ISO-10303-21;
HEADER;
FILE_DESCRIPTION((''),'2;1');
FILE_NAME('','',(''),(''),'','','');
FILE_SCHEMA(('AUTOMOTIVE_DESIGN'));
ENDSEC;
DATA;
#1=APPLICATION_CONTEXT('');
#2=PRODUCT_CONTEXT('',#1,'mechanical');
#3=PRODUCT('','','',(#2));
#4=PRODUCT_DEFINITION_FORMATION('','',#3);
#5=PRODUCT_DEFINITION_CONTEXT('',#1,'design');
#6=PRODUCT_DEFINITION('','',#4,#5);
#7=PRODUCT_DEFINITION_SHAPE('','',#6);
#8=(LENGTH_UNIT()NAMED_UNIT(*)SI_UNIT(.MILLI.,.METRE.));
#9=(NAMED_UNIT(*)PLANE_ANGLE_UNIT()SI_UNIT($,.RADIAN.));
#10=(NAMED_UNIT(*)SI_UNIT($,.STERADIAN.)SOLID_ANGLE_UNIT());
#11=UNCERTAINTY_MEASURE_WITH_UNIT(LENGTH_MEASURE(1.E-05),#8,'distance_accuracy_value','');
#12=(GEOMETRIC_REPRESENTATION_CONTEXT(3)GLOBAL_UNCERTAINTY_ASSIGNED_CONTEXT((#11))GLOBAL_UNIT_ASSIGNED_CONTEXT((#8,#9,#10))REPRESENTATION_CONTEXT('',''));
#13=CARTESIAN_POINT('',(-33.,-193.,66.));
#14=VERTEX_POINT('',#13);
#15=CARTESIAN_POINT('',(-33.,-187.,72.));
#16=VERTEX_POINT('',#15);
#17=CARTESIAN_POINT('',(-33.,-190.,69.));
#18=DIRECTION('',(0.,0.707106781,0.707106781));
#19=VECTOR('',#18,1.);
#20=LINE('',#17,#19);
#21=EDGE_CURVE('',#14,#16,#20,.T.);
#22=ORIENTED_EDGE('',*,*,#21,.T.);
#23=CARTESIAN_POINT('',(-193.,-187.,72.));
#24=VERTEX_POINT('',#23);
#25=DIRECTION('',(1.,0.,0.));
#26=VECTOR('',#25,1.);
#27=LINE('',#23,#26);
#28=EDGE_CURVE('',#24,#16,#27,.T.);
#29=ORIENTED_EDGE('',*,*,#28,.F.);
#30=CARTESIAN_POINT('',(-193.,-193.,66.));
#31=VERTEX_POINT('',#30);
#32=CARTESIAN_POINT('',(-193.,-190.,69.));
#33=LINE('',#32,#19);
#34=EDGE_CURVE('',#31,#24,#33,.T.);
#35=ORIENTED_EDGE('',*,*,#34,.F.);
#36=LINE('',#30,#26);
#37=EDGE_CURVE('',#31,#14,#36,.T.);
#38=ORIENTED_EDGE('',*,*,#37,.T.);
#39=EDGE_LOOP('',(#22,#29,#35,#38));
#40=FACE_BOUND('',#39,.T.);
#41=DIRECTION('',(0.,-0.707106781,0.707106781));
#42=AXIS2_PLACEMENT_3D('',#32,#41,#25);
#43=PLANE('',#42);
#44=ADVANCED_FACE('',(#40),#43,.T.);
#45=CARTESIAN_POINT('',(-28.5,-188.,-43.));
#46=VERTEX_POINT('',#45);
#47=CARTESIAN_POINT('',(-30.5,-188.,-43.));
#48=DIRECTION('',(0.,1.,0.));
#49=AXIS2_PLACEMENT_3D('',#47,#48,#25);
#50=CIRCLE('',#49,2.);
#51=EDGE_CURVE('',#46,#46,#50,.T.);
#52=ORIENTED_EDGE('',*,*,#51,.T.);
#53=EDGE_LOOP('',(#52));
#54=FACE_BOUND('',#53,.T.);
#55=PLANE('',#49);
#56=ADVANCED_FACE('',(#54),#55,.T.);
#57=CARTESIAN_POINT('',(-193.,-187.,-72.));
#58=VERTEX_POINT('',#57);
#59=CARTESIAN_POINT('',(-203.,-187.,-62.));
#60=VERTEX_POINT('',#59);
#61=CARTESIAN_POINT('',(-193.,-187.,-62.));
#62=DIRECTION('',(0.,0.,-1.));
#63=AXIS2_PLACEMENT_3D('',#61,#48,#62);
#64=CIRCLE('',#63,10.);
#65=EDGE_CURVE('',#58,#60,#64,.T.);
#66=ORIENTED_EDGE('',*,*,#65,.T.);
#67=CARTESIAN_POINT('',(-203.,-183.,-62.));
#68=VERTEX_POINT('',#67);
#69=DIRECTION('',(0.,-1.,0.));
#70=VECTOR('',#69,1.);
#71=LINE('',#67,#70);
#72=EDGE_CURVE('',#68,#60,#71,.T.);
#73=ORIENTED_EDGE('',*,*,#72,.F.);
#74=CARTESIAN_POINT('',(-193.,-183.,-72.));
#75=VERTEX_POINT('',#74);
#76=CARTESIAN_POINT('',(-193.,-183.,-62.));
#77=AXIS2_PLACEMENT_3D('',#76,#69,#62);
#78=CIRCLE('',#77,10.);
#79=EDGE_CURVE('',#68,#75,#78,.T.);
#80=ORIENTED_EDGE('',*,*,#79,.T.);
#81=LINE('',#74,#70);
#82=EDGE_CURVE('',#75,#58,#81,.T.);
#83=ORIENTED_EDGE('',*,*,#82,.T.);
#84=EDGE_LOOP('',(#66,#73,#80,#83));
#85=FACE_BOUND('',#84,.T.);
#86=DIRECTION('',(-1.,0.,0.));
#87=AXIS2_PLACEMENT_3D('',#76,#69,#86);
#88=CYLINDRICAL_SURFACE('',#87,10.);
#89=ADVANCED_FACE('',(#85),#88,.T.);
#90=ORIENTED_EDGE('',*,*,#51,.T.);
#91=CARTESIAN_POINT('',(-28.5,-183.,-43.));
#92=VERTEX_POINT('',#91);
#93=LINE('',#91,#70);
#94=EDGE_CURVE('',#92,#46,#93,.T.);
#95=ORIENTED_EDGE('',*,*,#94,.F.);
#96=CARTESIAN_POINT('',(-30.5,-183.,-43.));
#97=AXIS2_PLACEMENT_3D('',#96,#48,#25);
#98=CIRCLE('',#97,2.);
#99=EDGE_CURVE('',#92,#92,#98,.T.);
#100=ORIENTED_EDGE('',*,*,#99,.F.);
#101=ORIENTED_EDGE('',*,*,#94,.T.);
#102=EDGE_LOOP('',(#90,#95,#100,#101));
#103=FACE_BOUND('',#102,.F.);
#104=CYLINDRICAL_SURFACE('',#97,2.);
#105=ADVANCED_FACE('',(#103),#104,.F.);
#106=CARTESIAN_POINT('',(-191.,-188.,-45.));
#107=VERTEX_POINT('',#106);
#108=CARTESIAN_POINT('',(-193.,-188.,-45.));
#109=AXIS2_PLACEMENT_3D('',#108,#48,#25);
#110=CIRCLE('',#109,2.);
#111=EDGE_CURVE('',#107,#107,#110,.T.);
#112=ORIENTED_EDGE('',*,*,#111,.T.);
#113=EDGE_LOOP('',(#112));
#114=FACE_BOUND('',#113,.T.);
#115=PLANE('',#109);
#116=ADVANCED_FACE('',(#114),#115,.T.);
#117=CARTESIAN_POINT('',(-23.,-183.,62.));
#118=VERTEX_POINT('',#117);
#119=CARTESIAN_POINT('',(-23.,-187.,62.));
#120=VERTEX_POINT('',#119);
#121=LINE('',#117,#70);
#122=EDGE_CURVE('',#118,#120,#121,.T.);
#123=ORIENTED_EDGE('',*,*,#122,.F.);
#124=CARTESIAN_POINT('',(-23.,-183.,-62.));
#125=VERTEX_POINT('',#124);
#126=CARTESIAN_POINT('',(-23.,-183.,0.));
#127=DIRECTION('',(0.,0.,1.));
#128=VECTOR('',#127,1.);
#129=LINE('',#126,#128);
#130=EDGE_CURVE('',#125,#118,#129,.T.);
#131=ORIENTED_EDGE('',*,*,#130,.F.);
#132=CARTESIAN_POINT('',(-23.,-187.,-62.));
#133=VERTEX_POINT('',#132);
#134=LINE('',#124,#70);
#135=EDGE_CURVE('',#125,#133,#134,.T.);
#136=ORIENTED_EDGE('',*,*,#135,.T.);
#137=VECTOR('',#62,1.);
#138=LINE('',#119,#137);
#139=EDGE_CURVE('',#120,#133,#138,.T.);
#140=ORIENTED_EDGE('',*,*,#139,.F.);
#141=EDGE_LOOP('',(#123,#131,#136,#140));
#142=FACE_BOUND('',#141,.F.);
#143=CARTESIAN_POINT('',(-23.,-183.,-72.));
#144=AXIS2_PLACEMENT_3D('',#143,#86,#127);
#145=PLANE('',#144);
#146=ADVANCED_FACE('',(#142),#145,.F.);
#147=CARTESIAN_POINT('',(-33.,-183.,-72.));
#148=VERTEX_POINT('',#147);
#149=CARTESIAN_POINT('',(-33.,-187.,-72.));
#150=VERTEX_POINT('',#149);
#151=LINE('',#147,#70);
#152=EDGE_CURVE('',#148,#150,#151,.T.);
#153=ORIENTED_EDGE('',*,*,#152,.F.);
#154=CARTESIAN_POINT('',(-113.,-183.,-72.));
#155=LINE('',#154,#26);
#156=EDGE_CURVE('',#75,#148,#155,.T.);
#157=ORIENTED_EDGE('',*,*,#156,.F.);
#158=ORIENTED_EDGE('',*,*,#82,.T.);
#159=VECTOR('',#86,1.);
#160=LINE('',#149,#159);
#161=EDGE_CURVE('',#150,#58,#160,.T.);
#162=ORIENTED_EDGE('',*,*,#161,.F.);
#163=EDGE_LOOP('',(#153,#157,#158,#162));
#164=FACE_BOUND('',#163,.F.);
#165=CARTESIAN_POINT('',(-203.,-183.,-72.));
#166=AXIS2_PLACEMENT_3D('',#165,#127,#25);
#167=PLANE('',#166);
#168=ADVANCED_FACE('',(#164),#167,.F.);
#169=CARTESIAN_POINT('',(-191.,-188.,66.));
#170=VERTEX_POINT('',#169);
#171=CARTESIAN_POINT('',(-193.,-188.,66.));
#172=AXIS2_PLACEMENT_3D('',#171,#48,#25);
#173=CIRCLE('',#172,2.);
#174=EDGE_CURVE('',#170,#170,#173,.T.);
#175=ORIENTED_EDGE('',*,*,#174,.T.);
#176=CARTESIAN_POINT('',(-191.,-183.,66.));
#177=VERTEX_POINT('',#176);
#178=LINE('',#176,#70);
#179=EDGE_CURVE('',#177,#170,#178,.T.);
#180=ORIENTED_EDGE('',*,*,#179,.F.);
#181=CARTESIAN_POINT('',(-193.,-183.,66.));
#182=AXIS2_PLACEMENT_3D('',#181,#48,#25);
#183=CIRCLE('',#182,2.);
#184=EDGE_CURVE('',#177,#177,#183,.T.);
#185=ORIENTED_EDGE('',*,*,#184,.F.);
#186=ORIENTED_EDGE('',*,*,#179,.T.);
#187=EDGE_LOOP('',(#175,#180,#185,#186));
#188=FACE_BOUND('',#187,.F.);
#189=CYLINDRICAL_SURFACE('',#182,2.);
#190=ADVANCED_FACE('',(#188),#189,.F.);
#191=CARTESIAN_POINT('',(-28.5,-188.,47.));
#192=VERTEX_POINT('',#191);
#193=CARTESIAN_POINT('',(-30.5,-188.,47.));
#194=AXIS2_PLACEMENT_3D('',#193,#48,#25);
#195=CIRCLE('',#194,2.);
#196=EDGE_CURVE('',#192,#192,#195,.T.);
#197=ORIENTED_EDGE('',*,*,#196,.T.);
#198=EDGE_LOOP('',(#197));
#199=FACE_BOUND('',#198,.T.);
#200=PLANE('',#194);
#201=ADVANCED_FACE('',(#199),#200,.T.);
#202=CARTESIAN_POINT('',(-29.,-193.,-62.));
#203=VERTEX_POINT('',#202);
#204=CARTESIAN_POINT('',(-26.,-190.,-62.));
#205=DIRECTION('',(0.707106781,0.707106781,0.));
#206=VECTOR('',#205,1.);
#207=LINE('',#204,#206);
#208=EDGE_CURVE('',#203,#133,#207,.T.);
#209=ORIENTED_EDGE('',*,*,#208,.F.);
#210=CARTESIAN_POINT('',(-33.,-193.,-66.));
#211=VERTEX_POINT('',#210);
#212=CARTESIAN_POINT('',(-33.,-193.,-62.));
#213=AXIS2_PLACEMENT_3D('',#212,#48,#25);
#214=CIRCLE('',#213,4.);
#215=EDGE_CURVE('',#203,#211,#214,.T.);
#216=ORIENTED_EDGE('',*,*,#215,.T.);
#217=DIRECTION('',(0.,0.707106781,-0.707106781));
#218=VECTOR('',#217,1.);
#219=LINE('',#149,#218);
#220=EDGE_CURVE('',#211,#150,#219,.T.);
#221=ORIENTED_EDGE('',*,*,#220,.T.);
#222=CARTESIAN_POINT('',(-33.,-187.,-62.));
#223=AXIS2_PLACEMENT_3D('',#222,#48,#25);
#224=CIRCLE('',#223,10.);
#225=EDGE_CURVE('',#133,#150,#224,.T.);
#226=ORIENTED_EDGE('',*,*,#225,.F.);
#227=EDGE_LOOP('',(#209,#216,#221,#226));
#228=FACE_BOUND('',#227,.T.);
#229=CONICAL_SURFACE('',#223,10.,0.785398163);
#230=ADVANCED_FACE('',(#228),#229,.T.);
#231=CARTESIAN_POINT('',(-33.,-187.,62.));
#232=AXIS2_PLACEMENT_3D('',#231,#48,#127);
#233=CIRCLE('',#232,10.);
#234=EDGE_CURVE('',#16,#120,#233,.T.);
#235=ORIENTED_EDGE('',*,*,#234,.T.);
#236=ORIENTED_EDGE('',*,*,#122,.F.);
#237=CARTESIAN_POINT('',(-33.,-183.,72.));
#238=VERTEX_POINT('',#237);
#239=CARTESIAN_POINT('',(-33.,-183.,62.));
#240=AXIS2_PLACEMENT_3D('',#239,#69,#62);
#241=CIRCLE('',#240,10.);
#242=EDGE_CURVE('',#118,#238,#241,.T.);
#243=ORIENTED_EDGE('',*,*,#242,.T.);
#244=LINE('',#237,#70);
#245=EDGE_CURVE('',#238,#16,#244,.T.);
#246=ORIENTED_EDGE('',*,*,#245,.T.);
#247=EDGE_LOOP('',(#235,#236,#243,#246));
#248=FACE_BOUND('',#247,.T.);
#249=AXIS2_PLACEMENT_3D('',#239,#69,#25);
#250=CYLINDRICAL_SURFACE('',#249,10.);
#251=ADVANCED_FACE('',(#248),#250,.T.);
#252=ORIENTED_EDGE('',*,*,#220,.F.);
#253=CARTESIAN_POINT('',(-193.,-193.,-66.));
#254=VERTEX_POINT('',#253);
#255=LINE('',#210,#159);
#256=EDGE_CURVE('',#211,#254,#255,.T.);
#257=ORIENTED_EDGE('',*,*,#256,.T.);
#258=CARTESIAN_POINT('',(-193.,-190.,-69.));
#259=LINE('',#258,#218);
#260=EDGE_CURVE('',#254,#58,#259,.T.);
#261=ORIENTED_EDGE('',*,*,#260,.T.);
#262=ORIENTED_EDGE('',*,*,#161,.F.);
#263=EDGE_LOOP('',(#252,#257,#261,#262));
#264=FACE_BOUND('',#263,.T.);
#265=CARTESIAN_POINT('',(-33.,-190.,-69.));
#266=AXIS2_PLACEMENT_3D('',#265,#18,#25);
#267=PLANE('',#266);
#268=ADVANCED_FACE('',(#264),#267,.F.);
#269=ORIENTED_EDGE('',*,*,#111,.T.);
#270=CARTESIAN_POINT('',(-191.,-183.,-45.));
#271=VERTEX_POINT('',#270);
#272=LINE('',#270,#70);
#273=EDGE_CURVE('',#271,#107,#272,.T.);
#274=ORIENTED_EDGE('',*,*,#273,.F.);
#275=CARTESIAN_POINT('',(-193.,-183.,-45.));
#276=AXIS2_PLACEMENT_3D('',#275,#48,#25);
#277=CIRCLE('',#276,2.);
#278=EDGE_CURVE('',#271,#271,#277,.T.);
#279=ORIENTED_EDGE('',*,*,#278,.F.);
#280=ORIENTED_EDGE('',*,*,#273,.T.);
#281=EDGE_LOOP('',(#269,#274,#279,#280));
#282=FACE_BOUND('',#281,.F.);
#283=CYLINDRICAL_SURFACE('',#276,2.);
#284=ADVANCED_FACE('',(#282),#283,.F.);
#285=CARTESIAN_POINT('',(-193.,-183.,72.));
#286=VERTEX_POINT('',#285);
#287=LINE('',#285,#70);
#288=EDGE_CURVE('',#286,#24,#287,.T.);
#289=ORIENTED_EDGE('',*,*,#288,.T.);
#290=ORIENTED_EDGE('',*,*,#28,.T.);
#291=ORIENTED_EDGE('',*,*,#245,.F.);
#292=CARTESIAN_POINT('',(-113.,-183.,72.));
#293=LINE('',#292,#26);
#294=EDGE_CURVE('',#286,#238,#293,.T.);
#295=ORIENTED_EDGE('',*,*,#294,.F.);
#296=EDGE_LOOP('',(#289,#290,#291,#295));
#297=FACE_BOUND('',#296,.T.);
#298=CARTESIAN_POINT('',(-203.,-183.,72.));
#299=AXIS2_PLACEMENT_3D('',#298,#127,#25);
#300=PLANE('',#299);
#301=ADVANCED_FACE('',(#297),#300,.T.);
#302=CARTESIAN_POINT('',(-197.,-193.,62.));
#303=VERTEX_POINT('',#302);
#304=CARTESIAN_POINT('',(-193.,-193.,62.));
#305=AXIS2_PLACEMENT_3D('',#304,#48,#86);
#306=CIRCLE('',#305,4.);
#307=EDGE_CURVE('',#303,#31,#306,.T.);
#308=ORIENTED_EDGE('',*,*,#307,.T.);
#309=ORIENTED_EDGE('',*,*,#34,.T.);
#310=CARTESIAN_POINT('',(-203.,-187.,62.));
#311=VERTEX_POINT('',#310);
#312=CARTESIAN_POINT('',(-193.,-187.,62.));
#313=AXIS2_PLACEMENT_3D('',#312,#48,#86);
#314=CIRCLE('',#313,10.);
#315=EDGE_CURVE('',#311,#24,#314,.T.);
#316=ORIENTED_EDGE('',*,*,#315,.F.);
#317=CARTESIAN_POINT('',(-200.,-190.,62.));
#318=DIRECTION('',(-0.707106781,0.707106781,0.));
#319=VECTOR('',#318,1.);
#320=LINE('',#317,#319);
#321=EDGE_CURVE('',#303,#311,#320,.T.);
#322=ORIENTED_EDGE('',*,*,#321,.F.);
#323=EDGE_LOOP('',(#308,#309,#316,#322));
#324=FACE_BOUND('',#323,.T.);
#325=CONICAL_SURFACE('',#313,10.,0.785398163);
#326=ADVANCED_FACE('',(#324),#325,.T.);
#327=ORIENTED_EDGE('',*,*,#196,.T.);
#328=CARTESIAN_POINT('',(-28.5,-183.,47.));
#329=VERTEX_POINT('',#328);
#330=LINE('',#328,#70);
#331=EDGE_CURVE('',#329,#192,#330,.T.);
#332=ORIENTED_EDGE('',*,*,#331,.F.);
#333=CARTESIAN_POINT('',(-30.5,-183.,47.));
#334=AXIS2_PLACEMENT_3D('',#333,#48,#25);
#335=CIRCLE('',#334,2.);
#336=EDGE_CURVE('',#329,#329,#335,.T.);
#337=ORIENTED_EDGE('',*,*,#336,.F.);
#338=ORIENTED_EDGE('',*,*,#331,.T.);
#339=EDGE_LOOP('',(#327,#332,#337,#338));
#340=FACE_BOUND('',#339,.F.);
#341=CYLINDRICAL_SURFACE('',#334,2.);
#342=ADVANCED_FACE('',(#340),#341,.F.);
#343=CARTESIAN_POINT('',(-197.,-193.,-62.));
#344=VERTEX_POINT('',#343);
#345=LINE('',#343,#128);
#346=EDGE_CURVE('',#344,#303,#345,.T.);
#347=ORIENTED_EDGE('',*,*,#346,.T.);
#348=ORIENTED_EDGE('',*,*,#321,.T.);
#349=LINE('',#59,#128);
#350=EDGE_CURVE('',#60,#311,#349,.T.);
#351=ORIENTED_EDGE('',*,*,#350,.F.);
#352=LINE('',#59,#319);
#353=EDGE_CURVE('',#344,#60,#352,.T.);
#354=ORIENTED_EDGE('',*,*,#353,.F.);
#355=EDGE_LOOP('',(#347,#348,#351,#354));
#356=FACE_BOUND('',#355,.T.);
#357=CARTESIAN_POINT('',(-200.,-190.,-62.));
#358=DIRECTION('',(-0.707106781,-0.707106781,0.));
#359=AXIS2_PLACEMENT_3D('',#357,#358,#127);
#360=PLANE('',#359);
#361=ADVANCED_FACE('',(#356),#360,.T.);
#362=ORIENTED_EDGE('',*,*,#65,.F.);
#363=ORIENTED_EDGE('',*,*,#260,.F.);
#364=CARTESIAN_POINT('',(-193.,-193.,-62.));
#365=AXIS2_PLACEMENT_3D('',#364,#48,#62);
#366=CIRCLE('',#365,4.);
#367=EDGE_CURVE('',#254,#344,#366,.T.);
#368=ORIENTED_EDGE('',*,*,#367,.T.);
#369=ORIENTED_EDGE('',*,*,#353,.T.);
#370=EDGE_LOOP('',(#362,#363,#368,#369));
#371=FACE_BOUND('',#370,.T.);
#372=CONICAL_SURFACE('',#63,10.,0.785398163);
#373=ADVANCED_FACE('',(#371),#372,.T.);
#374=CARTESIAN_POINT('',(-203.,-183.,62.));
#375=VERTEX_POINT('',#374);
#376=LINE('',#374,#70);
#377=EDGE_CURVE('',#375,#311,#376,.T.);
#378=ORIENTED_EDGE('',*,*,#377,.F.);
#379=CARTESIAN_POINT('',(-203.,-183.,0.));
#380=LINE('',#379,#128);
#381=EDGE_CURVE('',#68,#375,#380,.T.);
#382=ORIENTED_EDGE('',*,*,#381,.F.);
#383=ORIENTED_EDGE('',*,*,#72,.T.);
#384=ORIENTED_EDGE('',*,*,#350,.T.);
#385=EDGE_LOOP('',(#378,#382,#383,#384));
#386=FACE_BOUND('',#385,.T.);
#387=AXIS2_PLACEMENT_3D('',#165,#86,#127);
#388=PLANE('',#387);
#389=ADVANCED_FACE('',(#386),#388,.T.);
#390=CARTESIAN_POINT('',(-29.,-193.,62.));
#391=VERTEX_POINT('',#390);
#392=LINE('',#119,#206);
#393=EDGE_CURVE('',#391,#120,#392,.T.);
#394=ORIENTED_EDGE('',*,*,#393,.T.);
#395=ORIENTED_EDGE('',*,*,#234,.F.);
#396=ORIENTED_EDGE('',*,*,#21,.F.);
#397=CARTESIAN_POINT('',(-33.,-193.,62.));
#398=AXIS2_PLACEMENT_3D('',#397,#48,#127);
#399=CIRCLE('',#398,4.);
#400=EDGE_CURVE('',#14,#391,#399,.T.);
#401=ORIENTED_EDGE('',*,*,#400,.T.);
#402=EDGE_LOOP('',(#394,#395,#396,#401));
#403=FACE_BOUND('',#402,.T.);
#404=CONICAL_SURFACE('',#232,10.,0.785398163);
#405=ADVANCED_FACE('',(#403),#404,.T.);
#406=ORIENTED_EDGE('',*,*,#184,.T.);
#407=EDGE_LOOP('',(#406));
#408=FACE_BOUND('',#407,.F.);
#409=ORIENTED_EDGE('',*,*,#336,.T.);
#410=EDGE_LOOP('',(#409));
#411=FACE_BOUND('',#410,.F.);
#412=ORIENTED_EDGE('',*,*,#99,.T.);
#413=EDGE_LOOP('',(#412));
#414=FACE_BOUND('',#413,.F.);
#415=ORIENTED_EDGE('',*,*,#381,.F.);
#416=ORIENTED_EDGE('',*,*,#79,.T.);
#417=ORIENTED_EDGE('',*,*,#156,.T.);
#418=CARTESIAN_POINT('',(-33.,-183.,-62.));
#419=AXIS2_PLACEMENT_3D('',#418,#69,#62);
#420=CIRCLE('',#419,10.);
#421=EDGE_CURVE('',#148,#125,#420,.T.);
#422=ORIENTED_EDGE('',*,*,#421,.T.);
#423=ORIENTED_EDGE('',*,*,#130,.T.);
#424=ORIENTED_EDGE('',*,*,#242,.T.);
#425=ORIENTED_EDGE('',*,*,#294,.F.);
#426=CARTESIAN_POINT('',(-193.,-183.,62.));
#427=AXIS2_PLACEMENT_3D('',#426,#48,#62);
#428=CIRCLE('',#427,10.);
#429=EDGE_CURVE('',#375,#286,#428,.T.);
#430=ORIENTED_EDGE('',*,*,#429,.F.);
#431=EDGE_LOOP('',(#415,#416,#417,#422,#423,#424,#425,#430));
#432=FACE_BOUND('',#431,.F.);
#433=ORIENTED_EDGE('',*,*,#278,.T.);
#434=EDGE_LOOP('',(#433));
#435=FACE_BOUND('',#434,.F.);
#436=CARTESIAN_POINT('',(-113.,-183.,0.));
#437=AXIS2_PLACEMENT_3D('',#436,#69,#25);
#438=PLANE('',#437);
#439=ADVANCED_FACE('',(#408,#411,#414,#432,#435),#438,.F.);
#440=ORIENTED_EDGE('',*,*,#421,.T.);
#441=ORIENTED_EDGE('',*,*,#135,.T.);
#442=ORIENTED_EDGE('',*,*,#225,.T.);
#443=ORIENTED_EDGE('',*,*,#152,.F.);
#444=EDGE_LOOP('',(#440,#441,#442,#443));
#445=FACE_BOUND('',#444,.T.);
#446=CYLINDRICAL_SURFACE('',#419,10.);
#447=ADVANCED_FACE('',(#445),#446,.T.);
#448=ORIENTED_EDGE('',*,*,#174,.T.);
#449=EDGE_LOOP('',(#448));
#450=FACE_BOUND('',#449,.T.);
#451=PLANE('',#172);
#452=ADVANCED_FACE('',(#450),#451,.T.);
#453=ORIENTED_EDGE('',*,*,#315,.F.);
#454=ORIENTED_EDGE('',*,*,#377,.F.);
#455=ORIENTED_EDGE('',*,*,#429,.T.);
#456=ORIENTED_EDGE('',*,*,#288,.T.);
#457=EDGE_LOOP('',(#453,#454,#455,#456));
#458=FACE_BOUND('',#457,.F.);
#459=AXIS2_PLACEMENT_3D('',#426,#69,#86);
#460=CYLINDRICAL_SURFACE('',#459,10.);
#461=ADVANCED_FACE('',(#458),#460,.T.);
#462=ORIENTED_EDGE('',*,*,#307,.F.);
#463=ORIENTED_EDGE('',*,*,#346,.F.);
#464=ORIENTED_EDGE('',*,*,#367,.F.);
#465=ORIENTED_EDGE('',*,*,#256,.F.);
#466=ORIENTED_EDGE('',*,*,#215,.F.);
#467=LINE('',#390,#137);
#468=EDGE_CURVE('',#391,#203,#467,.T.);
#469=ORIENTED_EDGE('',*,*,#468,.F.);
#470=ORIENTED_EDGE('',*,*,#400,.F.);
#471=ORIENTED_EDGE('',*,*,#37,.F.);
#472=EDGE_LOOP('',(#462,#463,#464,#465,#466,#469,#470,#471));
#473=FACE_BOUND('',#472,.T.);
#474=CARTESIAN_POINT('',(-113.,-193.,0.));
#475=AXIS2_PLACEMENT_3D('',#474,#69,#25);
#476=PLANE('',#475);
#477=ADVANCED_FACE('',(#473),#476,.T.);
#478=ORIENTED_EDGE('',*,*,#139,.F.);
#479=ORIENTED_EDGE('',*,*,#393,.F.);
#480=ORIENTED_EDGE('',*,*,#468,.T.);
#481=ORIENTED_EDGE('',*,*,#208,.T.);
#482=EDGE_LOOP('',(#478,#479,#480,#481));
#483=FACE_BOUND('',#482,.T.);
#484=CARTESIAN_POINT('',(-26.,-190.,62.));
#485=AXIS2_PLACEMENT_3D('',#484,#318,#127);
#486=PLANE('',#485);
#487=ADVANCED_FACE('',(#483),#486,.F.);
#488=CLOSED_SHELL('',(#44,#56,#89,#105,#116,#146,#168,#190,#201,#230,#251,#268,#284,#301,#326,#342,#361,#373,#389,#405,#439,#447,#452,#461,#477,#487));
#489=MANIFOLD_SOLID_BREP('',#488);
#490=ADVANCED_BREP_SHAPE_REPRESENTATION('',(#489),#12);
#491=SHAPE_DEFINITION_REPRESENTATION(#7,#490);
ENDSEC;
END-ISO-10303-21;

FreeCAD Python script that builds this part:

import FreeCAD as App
import Part
import Sketcher

V = App.Vector


def edges_at(feature, points):
    """Names of the edges that pass closest to the given points."""
    edges = feature.Shape.Edges
    near = lambda p: min(range(len(edges)), key=lambda i: edges[i].distToShape(Part.Vertex(*p))[0])
    return sorted({f"Edge{near(p) + 1}" for p in points})

doc = App.newDocument("Part")
body = doc.addObject("PartDesign::Body", "Body")

# Sketch on XZ plane
sketch1 = doc.addObject("Sketcher::SketchObject", "Sketch")
body.addObject(sketch1)
sketch1.AttachmentSupport = (doc.XZ_Plane, [""])
sketch1.MapMode = "FlatFace"
sketch1.addGeometry(Part.LineSegment(V(-90, 72, 0), V(-90, -72, 0)), False)
sketch1.addGeometry(Part.LineSegment(V(-90, -72, 0), V(90, -72, 0)), False)
sketch1.addGeometry(Part.LineSegment(V(90, -72, 0), V(90, 72, 0)), False)
sketch1.addGeometry(Part.LineSegment(V(90, 72, 0), V(-90, 72, 0)), False)
sketch1.addConstraint(Sketcher.Constraint("Coincident", 0, 2, 1, 1))
sketch1.addConstraint(Sketcher.Constraint("Coincident", 1, 2, 2, 1))
sketch1.addConstraint(Sketcher.Constraint("Coincident", 2, 2, 3, 1))
sketch1.addConstraint(Sketcher.Constraint("Coincident", 3, 2, 0, 1))
sketch1.addConstraint(Sketcher.Constraint("Vertical", 0))
sketch1.addConstraint(Sketcher.Constraint("Horizontal", 1))
sketch1.addConstraint(Sketcher.Constraint("Vertical", 2))
sketch1.addConstraint(Sketcher.Constraint("Horizontal", 3))
sketch1.addConstraint(Sketcher.Constraint("Symmetric", 0, 2, 2, 2, -1, 1))
sketch1.addConstraint(Sketcher.Constraint("DistanceX", 1, 1, 1, 2, 180.0))
sketch1.addConstraint(Sketcher.Constraint("DistanceY", 0, 2, 0, 1, 144.0))
pad1 = doc.addObject("PartDesign::Pad", "Pad")
body.addObject(pad1)
pad1.Profile = sketch1
pad1.Length = 10
doc.recompute()

fillet = doc.addObject("PartDesign::Fillet", "Fillet")
body.addObject(fillet)
fillet.Base = (pad1, edges_at(pad1, [
    (-90, -5, 72),
    (90, -5, 72),
    (90, -5, -72),
    (-90, -5, -72),
]))
fillet.Radius = 10
doc.recompute()

chamfer = doc.addObject("PartDesign::Chamfer", "Chamfer")
body.addObject(chamfer)
chamfer.Base = (fillet, edges_at(fillet, [
    (0, -10, 72),
    (90, -10, 0),
    (0, -10, -72),
    (-90, -10, 0),
]))
chamfer.Size = 6

# Sketch on XZ plane
sketch2 = doc.addObject("Sketcher::SketchObject", "Sketch001")
body.addObject(sketch2)
sketch2.AttachmentSupport = (doc.XZ_Plane, [""])
sketch2.MapMode = "FlatFace"
sketch2.addGeometry(Part.Circle(V(-80, 66, 0), V(0, 0, 1), 2), False)
sketch2.addGeometry(Part.Circle(V(-80, -45, 0), V(0, 0, 1), 2), False)
sketch2.addGeometry(Part.Circle(V(82.5, -43, 0), V(0, 0, 1), 2), False)
sketch2.addGeometry(Part.Circle(V(82.5, 47, 0), V(0, 0, 1), 2), False)
sketch2.addConstraint(Sketcher.Constraint("Equal", 0, 1))
sketch2.addConstraint(Sketcher.Constraint("Equal", 1, 2))
sketch2.addConstraint(Sketcher.Constraint("Equal", 2, 3))
sketch2.addConstraint(Sketcher.Constraint("Vertical", 0, 3, 1, 3))
sketch2.addConstraint(Sketcher.Constraint("Vertical", 2, 3, 3, 3))
sketch2.addConstraint(Sketcher.Constraint("Diameter", 0, 4.0))
sketch2.addConstraint(Sketcher.Constraint("DistanceX", 0, 3, -1, 1, 80.0))
sketch2.addConstraint(Sketcher.Constraint("DistanceY", -1, 1, 0, 3, 66.0))
sketch2.addConstraint(Sketcher.Constraint("DistanceY", 1, 3, -1, 1, 45.0))
sketch2.addConstraint(Sketcher.Constraint("DistanceY", 2, 3, -1, 1, 43.0))
sketch2.addConstraint(Sketcher.Constraint("DistanceY", -1, 1, 3, 3, 47.0))
sketch2.addConstraint(Sketcher.Constraint("DistanceX", -1, 1, 2, 3, 82.5))
pocket1 = doc.addObject("PartDesign::Pocket", "Pocket")
body.addObject(pocket1)
pocket1.Profile = sketch2
pocket1.Length = 5
pocket1.Reversed = True
body2 = doc.addObject("PartDesign::Body", "Body001")
doc.recompute()

body.Placement = App.Placement(V(-113, -183, 0), App.Rotation(V(0, 0, 1), 0))
boolean = doc.addObject("PartDesign::Boolean", "Boolean")
body2.addObject(boolean)
boolean.Type = "Fuse"
boolean.addObjects([body])

doc.recompute()
